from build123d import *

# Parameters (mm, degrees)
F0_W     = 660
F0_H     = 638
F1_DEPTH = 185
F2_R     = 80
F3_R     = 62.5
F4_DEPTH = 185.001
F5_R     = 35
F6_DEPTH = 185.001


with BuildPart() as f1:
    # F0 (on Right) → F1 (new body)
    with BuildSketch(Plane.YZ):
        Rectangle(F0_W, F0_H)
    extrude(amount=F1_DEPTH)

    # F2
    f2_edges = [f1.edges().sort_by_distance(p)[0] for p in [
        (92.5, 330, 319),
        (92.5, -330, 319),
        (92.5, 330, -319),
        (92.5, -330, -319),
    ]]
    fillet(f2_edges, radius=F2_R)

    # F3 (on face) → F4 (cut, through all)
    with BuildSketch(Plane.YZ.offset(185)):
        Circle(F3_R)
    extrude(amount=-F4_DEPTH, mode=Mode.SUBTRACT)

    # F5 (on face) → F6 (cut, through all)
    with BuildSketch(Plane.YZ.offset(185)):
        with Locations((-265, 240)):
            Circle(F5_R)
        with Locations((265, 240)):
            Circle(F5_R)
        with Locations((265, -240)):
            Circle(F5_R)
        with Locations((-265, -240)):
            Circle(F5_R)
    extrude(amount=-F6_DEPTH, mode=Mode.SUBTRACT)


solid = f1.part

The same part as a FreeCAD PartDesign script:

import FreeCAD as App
import Part
import Sketcher

V = App.Vector


def edges_at(feature, points):
    """Names of the edges that pass closest to the given points."""
    edges = feature.Shape.Edges
    near = lambda p: min(range(len(edges)), key=lambda i: edges[i].distToShape(Part.Vertex(*p))[0])
    return sorted({f"Edge{near(p) + 1}" for p in points})


def add_polygon(sketch, points):
    """Adds a closed chain of lines whose ends are joined by coincident constraints."""
    first, n = sketch.GeometryCount, len(points)
    for a, b in zip(points, points[1:] + points[:1]):
        sketch.addGeometry(Part.LineSegment(App.Vector(*a, 0), App.Vector(*b, 0)), False)
    for i in range(n):
        sketch.addConstraint(Sketcher.Constraint("Coincident", first + i, 2, first + (i + 1) % n, 1))

doc = App.newDocument("Part")
body = doc.addObject("PartDesign::Body", "Body")

# Sketch on YZ plane
sketch1 = body.newObject("Sketcher::SketchObject", "Sketch")
sketch1.AttachmentSupport = (doc.getObject("YZ_Plane"), [""])
sketch1.MapMode = "FlatFace"
add_polygon(sketch1, [(-330, 319), (-330, -319), (330, -319), (330, 319)])  # lines 0-3
sketch1.addConstraint(Sketcher.Constraint("Vertical", 0))
sketch1.addConstraint(Sketcher.Constraint("Horizontal", 1))
sketch1.addConstraint(Sketcher.Constraint("Vertical", 2))
sketch1.addConstraint(Sketcher.Constraint("Horizontal", 3))
sketch1.addConstraint(Sketcher.Constraint("Symmetric", 0, 2, 2, 2, -1, 1))
sketch1.addConstraint(Sketcher.Constraint("DistanceX", 1, 1, 1, 2, 660.0))
sketch1.addConstraint(Sketcher.Constraint("DistanceY", 0, 2, 0, 1, 638.0))
pad1 = body.newObject("PartDesign::Pad", "Pad")
pad1.Profile = sketch1
pad1.Length = 185
doc.recompute()

fillet = body.newObject("PartDesign::Fillet", "Fillet")
fillet.Base = (pad1, edges_at(pad1, [
    (92.5, 330, 319),
    (92.5, -330, 319),
    (92.5, 330, -319),
    (92.5, -330, -319),
]))
fillet.Radius = 80

# Sketch on YZ plane
sketch2 = body.newObject("Sketcher::SketchObject", "Sketch001")
sketch2.AttachmentSupport = (doc.getObject("YZ_Plane"), [""])
sketch2.MapMode = "FlatFace"
sketch2.AttachmentOffset = App.Placement(V(0, 0, 185), App.Rotation())
sketch2.addGeometry(Part.Circle(V(0, 0, 0), V(0, 0, 1), 62), False)
sketch2.addConstraint(Sketcher.Constraint("Coincident", 0, 3, -1, 1))
sketch2.addConstraint(Sketcher.Constraint("Diameter", 0, 125.0))
pocket1 = body.newObject("PartDesign::Pocket", "Pocket")
pocket1.Profile = sketch2
pocket1.Type = "ThroughAll"

# Sketch on YZ plane
sketch3 = body.newObject("Sketcher::SketchObject", "Sketch002")
sketch3.AttachmentSupport = (doc.getObject("YZ_Plane"), [""])
sketch3.MapMode = "FlatFace"
sketch3.AttachmentOffset = App.Placement(V(0, 0, 185), App.Rotation())
sketch3.addGeometry(Part.Circle(V(-265, 240, 0), V(0, 0, 1), 35), False)
sketch3.addGeometry(Part.Circle(V(265, 240, 0), V(0, 0, 1), 35), False)
sketch3.addGeometry(Part.Circle(V(265, -240, 0), V(0, 0, 1), 35), False)
sketch3.addGeometry(Part.Circle(V(-265, -240, 0), V(0, 0, 1), 35), False)
sketch3.addConstraint(Sketcher.Constraint("Equal", 0, 1))
sketch3.addConstraint(Sketcher.Constraint("Equal", 1, 2))
sketch3.addConstraint(Sketcher.Constraint("Equal", 2, 3))
sketch3.addConstraint(Sketcher.Constraint("Symmetric", 0, 3, 2, 3, -1, 1))
sketch3.addConstraint(Sketcher.Constraint("Symmetric", 1, 3, 3, 3, -1, 1))
sketch3.addConstraint(Sketcher.Constraint("Symmetric", 0, 3, 1, 3, -2))
sketch3.addConstraint(Sketcher.Constraint("Diameter", 0, 70.0))
sketch3.addConstraint(Sketcher.Constraint("DistanceX", 0, 3, -1, 1, 265.0))
sketch3.addConstraint(Sketcher.Constraint("DistanceY", -1, 1, 0, 3, 240.0))
pocket2 = body.newObject("PartDesign::Pocket", "Pocket001")
pocket2.Profile = sketch3
pocket2.Type = "ThroughAll"

doc.recompute()
